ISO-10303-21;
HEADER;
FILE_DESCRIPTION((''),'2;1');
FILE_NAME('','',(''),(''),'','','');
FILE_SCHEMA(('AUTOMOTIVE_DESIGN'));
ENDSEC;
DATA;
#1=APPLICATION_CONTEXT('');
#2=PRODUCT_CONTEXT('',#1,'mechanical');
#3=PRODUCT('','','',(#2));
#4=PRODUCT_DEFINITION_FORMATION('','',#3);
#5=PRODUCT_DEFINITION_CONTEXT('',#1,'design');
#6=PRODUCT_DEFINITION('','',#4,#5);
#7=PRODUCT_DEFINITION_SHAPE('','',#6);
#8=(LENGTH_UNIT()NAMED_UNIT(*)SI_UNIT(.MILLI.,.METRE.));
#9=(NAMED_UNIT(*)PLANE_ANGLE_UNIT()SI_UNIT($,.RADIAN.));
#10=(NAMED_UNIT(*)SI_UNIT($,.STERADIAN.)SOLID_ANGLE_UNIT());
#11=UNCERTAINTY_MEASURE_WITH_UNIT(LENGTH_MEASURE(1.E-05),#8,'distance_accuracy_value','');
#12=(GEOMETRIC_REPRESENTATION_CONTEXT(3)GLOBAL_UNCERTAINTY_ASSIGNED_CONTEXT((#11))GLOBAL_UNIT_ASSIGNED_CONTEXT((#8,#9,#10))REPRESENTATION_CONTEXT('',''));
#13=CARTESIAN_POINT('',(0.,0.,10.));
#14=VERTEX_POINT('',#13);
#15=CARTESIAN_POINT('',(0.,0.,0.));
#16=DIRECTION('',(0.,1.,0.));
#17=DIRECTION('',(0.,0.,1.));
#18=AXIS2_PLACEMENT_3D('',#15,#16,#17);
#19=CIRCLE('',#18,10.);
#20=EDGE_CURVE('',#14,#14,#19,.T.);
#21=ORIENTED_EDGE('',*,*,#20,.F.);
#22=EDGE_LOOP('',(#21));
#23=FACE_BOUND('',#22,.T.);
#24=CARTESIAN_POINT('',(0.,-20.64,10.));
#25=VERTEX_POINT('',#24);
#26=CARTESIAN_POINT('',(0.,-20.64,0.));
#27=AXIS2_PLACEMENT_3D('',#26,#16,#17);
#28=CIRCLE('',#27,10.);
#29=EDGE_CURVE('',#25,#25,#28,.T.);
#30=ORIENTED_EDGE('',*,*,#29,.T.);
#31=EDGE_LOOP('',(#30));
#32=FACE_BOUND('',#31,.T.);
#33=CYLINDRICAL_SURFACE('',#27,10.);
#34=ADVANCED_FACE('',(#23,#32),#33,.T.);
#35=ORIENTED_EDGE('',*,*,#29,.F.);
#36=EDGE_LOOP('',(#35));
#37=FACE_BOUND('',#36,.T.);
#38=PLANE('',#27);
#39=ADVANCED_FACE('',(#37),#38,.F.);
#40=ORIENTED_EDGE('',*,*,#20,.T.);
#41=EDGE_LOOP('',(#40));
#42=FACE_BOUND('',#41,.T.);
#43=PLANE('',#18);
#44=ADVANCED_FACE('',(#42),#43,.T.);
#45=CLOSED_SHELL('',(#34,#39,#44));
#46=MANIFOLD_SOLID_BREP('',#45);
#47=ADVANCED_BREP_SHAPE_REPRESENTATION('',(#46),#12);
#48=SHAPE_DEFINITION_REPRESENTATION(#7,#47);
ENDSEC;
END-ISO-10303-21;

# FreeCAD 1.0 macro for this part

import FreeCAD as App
import Part
import Sketcher
from FreeCAD import Vector

doc = App.newDocument("Part")
body = doc.addObject("PartDesign::Body", "Body")

# Sketch on XZ plane
sketch1 = body.newObject("Sketcher::SketchObject", "Sketch")
sketch1.AttachmentSupport = (doc.getObject("XZ_Plane"), [""])
sketch1.MapMode = "FlatFace"
sketch1.addGeometry(Part.Circle(Vector(0, 0, 0), Vector(0, 0, 1), 10), False)
sketch1.addConstraint(Sketcher.Constraint("Coincident", 0, 3, -1, 1))
sketch1.addConstraint(Sketcher.Constraint("Diameter", 0, 20.0))
pad1 = body.newObject("PartDesign::Pad", "Pad")
pad1.Profile = sketch1
pad1.Length = 20.64

doc.recompute()
